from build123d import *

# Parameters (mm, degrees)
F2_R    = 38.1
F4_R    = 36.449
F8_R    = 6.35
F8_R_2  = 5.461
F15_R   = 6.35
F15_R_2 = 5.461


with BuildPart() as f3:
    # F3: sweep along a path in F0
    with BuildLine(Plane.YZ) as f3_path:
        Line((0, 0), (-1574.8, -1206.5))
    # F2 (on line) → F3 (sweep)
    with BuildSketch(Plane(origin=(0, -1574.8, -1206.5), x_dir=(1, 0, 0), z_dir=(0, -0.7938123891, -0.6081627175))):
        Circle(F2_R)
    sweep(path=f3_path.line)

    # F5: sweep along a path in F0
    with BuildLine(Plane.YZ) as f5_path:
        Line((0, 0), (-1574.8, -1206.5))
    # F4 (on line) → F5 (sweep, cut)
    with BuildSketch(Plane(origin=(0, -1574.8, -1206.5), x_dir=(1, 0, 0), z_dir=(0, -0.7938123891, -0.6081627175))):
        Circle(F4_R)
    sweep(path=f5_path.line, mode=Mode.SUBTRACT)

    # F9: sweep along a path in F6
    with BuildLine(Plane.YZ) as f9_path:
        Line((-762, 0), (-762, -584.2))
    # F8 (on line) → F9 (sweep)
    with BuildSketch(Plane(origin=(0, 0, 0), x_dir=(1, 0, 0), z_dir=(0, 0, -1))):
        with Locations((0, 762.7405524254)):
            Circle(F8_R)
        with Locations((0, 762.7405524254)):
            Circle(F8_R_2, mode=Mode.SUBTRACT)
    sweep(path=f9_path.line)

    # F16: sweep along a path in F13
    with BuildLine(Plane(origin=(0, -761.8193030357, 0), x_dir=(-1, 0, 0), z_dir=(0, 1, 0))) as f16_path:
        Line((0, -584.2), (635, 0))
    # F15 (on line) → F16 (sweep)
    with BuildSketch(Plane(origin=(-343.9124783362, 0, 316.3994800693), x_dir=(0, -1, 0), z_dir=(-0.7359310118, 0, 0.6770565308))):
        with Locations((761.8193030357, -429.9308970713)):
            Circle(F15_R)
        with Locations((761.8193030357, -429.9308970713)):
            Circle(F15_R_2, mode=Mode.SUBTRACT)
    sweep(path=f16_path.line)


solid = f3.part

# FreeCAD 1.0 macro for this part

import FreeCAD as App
import Part
import Sketcher
Q = App.Units.Quantity

doc = App.newDocument("Part")
body = doc.addObject("PartDesign::Body", "Body")

sketch1 = body.newObject("Sketcher::SketchObject", "Sketch")
sketch1.Placement = App.Placement(App.Vector(0, -1574.8, -1206.5), App.Rotation(App.Vector(1, 0, 0), App.Vector(0, -0.608162717, 0.793812389), App.Vector(0, -0.793812389, -0.608162717), "ZXY"))
sketch1.addGeometry(Part.Circle(App.Vector(0, 0, 0), App.Vector(0, 0, 1), 38), False)
sketch1.addConstraint(Sketcher.Constraint("Coincident", 0, 3, -1, 1))
sketch1.addConstraint(Sketcher.Constraint("Diameter", 0, Q("3 in")))

sketch2 = body.newObject("Sketcher::SketchObject", "Sketch001")
sketch2.Placement = App.Placement(App.Vector(0, 0, 0), App.Rotation(App.Vector(0, 0.793812389, 0.608162717), App.Vector(0.999999999, 0, 0), App.Vector(0, 0.608162717, -0.793812389), "ZXY"))
sketch2.addGeometry(Part.LineSegment(App.Vector(0, 0, 0), App.Vector(-1984, 0, 0)), False)
sketch2.addConstraint(Sketcher.Constraint("Horizontal", 0))
sketch2.addConstraint(Sketcher.Constraint("Coincident", 0, 1, -1, 1))
sketch2.addConstraint(Sketcher.Constraint("DistanceX", 0, 2, 0, 1, 1983.844068))
doc.recompute()

additivepipe = body.newObject("PartDesign::AdditivePipe", "AdditivePipe")
additivepipe.Profile = sketch1
additivepipe.Spine = (sketch2, ["Edge1"])

sketch3 = body.newObject("Sketcher::SketchObject", "Sketch002")
sketch3.Placement = App.Placement(App.Vector(0, -1574.8, -1206.5), App.Rotation(App.Vector(1, 0, 0), App.Vector(0, -0.608162717, 0.793812389), App.Vector(0, -0.793812389, -0.608162717), "ZXY"))
sketch3.addGeometry(Part.Circle(App.Vector(0, 0, 0), App.Vector(0, 0, 1), 36), False)
sketch3.addConstraint(Sketcher.Constraint("Coincident", 0, 3, -1, 1))
sketch3.addConstraint(Sketcher.Constraint("Diameter", 0, Q("2.87 in")))

sketch4 = body.newObject("Sketcher::SketchObject", "Sketch003")
sketch4.Placement = App.Placement(App.Vector(0, 0, 0), App.Rotation(App.Vector(0, 0.793812389, 0.608162717), App.Vector(0.999999999, 0, 0), App.Vector(0, 0.608162717, -0.793812389), "ZXY"))
sketch4.addGeometry(Part.LineSegment(App.Vector(0, 0, 0), App.Vector(-1984, 0, 0)), False)
sketch4.addConstraint(Sketcher.Constraint("Horizontal", 0))
sketch4.addConstraint(Sketcher.Constraint("Coincident", 0, 1, -1, 1))
sketch4.addConstraint(Sketcher.Constraint("DistanceX", 0, 2, 0, 1, 1983.844068))
doc.recompute()

subtractivepipe = body.newObject("PartDesign::SubtractivePipe", "SubtractivePipe")
subtractivepipe.Profile = sketch3
subtractivepipe.Spine = (sketch4, ["Edge1"])

sketch5 = body.newObject("Sketcher::SketchObject", "Sketch004")
sketch5.AttachmentSupport = (doc.getObject("XY_Plane"), [""])
sketch5.MapMode = "FlatFace"
sketch5.addGeometry(Part.Circle(App.Vector(0, -763, 0), App.Vector(0, 0, 1), 6), False)
sketch5.addGeometry(Part.Circle(App.Vector(0, -763, 0), App.Vector(0, 0, 1), 5), False)
sketch5.addConstraint(Sketcher.Constraint("Coincident", 1, 3, 0, 3))
sketch5.addConstraint(Sketcher.Constraint("PointOnObject", 0, 3, -2))
sketch5.addConstraint(Sketcher.Constraint("Diameter", 0, Q("0.5 in")))
sketch5.addConstraint(Sketcher.Constraint("Diameter", 1, Q("0.43 in")))
sketch5.addConstraint(Sketcher.Constraint("DistanceY", 0, 3, -1, 1, 762.740552))

sketch6 = body.newObject("Sketcher::SketchObject", "Sketch005")
sketch6.AttachmentSupport = (doc.getObject("XZ_Plane"), [""])
sketch6.MapMode = "FlatFace"
sketch6.AttachmentOffset = App.Placement(App.Vector(0, 0, 30 * 25.4), App.Rotation())
sketch6.addGeometry(Part.LineSegment(App.Vector(0, 0, 0), App.Vector(0, -584, 0)), False)
sketch6.addConstraint(Sketcher.Constraint("Vertical", 0))
sketch6.addConstraint(Sketcher.Constraint("Coincident", 0, 1, -1, 1))
sketch6.addConstraint(Sketcher.Constraint("DistanceY", 0, 2, 0, 1, Q("23 in")))
doc.recompute()

additivepipe2 = body.newObject("PartDesign::AdditivePipe", "AdditivePipe001")
additivepipe2.Profile = sketch5
additivepipe2.Spine = (sketch6, ["Edge1"])

sketch7 = body.newObject("Sketcher::SketchObject", "Sketch006")
sketch7.Placement = App.Placement(App.Vector(-343.912478, 0, 316.39948), App.Rotation(App.Vector(0, -1, 0), App.Vector(0.677056531, 0, 0.735931012), App.Vector(-0.735931012, 0, 0.677056531), "ZXY"))
sketch7.addGeometry(Part.Circle(App.Vector(762, -430, 0), App.Vector(0, 0, 1), 6), False)
sketch7.addGeometry(Part.Circle(App.Vector(762, -430, 0), App.Vector(0, 0, 1), 5), False)
sketch7.addConstraint(Sketcher.Constraint("Coincident", 1, 3, 0, 3))
sketch7.addConstraint(Sketcher.Constraint("Diameter", 0, Q("0.5 in")))
sketch7.addConstraint(Sketcher.Constraint("Diameter", 1, Q("0.43 in")))
sketch7.addConstraint(Sketcher.Constraint("DistanceX", -1, 1, 0, 3, 761.819303))
sketch7.addConstraint(Sketcher.Constraint("DistanceY", 0, 3, -1, 1, 429.930897))

sketch8 = body.newObject("Sketcher::SketchObject", "Sketch007")
sketch8.Placement = App.Placement(App.Vector(-291.087522, 0, -316.39948), App.Rotation(App.Vector(-0.735931012, 0, 0.677056531), App.Vector(0, 1.000000001, 0), App.Vector(-0.677056531, 0, -0.735931012), "ZXY"))
sketch8.addGeometry(Part.LineSegment(App.Vector(-396, -762, 0), App.Vector(467, -762, 0)), False)
sketch8.addConstraint(Sketcher.Constraint("Horizontal", 0))
sketch8.addConstraint(Sketcher.Constraint("DistanceX", 0, 1, 0, 2, 862.852618))
sketch8.addConstraint(Sketcher.Constraint("DistanceX", 0, 1, -1, 1, 395.536426))
sketch8.addConstraint(Sketcher.Constraint("DistanceY", 0, 1, -1, 1, 761.819304))
doc.recompute()

additivepipe3 = body.newObject("PartDesign::AdditivePipe", "AdditivePipe002")
additivepipe3.Profile = sketch7
additivepipe3.Spine = (sketch8, ["Edge1"])

doc.recompute()
